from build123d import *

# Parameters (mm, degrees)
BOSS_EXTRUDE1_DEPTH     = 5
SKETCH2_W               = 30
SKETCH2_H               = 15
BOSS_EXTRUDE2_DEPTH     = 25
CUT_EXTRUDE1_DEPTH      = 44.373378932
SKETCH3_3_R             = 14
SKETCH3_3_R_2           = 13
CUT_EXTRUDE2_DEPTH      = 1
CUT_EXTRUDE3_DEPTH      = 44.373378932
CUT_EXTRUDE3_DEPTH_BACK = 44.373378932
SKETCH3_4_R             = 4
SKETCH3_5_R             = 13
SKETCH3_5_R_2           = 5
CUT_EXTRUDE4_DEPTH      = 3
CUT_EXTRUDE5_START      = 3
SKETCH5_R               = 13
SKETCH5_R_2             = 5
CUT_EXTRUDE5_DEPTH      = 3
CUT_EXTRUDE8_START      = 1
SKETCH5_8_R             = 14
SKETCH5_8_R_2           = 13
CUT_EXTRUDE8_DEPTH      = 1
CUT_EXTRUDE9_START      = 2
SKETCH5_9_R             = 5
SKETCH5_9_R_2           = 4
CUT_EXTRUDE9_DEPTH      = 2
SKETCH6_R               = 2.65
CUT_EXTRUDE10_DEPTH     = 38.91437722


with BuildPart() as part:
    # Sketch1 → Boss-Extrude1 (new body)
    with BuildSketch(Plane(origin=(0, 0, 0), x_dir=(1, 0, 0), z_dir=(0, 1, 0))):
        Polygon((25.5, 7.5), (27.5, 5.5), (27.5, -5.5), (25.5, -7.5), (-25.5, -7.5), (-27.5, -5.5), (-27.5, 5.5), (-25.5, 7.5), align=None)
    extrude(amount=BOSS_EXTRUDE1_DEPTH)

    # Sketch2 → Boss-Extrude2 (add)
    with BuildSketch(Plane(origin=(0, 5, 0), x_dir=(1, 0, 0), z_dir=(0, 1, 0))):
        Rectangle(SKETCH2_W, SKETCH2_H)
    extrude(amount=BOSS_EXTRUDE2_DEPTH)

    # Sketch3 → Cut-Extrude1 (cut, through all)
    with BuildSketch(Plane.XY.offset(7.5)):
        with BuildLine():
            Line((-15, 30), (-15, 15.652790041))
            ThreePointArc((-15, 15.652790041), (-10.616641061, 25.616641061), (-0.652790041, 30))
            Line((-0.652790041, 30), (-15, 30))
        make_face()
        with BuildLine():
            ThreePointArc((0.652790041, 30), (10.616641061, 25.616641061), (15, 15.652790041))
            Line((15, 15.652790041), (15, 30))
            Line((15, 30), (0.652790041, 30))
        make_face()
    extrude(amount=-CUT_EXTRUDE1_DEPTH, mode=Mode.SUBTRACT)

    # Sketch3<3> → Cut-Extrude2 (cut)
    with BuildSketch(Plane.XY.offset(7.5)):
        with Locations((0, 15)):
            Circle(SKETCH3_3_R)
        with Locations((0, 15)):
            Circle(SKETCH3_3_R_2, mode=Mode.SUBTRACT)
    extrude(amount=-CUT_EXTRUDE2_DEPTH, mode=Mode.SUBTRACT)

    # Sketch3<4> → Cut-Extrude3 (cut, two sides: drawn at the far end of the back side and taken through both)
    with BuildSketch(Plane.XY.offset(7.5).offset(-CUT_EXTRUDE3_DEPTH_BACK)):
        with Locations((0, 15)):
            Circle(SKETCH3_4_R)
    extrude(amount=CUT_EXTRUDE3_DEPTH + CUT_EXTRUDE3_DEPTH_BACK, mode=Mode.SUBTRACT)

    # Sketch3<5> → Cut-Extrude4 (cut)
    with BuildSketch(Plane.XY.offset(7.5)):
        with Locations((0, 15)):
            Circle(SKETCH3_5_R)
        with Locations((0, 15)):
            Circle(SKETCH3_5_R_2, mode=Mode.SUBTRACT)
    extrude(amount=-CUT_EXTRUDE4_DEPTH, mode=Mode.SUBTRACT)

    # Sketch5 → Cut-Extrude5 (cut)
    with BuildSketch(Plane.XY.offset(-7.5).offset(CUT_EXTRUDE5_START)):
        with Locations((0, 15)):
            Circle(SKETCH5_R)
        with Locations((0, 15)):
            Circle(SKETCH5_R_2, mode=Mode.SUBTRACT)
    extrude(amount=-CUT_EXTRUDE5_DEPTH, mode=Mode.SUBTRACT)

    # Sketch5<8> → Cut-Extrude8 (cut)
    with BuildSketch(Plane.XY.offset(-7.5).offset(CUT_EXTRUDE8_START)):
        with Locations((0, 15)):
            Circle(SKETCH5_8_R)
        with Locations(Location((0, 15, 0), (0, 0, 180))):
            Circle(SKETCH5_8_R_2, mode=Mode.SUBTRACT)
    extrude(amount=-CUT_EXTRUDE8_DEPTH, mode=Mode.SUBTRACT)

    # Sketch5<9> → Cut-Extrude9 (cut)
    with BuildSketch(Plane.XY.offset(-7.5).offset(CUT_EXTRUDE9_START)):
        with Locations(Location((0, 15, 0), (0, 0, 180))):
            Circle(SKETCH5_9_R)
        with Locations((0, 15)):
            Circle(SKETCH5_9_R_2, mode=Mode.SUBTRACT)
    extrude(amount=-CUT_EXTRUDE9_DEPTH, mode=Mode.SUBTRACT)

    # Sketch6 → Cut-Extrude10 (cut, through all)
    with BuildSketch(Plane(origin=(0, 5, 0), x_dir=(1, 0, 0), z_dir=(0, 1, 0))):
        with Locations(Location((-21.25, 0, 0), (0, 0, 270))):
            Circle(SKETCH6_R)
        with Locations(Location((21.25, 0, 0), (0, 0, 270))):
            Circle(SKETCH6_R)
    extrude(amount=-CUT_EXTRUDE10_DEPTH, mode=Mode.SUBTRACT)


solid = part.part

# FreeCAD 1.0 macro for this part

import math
import FreeCAD as App
import Part
import Sketcher
from FreeCAD import Vector
Q = App.Units.Quantity


def add_polygon(sketch, points):
    """Adds a closed chain of lines whose ends are joined by coincident constraints."""
    first, n = sketch.GeometryCount, len(points)
    for a, b in zip(points, points[1:] + points[:1]):
        sketch.addGeometry(Part.LineSegment(App.Vector(*a, 0), App.Vector(*b, 0)), False)
    for i in range(n):
        sketch.addConstraint(Sketcher.Constraint("Coincident", first + i, 2, first + (i + 1) % n, 1))

doc = App.newDocument("Part")
body = doc.addObject("PartDesign::Body", "Body")

sketch1 = doc.addObject("Sketcher::SketchObject", "Sketch")
body.addObject(sketch1)
sketch1.AttachmentSupport = (doc.XZ_Plane, [""])
sketch1.MapMode = "FlatFace"
add_polygon(sketch1, [(27.5, -5.5), (25.5, -7.5), (-25.5, -7.5), (-27.5, -5.5), (-27.5, 5.5), (-25.5, 7.5), (25.5, 7.5), (27.5, 5.5)])
sketch1.addConstraint([
    Sketcher.Constraint("Horizontal", 1),
    Sketcher.Constraint("Vertical", 3),
    Sketcher.Constraint("Horizontal", 5),
    Sketcher.Constraint("Vertical", 7),
    Sketcher.Constraint("Symmetric", 0, 2, 4, 2, -1, 1),
    Sketcher.Constraint("Symmetric", 2, 2, 6, 2, -1, 1),
    Sketcher.Constraint("Perpendicular", 0, 2),
    Sketcher.Constraint("Perpendicular", 2, 4),
    Sketcher.Constraint("Perpendicular", 4, 6),
    Sketcher.Constraint("Horizontal", 3, 2, 6, 2),
    Sketcher.Constraint("Vertical", 1, 2, 4, 2),
    Sketcher.Constraint("DistanceX", 1, 2, 1, 1, Q("51 mm")),
    Sketcher.Constraint("DistanceY", 3, 1, 3, 2, Q("11 mm")),
    Sketcher.Constraint("DistanceX", 2, 2, 1, 2, Q("2 mm")),
])
pad1 = doc.addObject("PartDesign::Pad", "Pad")
body.addObject(pad1)
pad1.Profile = sketch1
pad1.Length = 5
pad1.Reversed = True

sketch2 = doc.addObject("Sketcher::SketchObject", "Sketch001")
body.addObject(sketch2)
sketch2.AttachmentSupport = (doc.XZ_Plane, [""])
sketch2.MapMode = "FlatFace"
sketch2.AttachmentOffset = App.Placement(Vector(0, 0, -5), App.Rotation())
add_polygon(sketch2, [(-15, -7.5), (-15, 7.5), (15, 7.5), (15, -7.5)])
sketch2.addConstraint([
    Sketcher.Constraint("Vertical", 0),
    Sketcher.Constraint("Horizontal", 1),
    Sketcher.Constraint("Vertical", 2),
    Sketcher.Constraint("Horizontal", 3),
    Sketcher.Constraint("Symmetric", 0, 2, 2, 2, -1, 1),
    Sketcher.Constraint("DistanceX", 1, 1, 1, 2, Q("30 mm")),
    Sketcher.Constraint("DistanceY", 0, 1, 0, 2, Q("15 mm")),
])
pad2 = doc.addObject("PartDesign::Pad", "Pad001")
body.addObject(pad2)
pad2.Profile = sketch2
pad2.Length = 25
pad2.Reversed = True

sketch3 = doc.addObject("Sketcher::SketchObject", "Sketch002")
body.addObject(sketch3)
sketch3.AttachmentSupport = (doc.XY_Plane, [""])
sketch3.MapMode = "FlatFace"
sketch3.AttachmentOffset = App.Placement(Vector(0, 0, 7.5), App.Rotation())
sketch3.addGeometry([
    Part.LineSegment(Vector(-15, 30, 0), Vector(-15, 15.65279, 0)),
    Part.ArcOfCircle(Part.Circle(Vector(0, 15, 0), Vector(0, 0, 1), 15.014198), math.radians(92.491902), math.radians(177.508098)),
    Part.LineSegment(Vector(-0.65279, 30, 0), Vector(-15, 30, 0)),
    Part.ArcOfCircle(Part.Circle(Vector(0, 15, 0), Vector(0, 0, 1), 15.014198), math.radians(2.491902), math.radians(87.508098)),
    Part.LineSegment(Vector(15, 15.65279, 0), Vector(15, 30, 0)),
    Part.LineSegment(Vector(15, 30, 0), Vector(0.65279, 30, 0)),
], False)
sketch3.addConstraint([
    Sketcher.Constraint("Coincident", 0, 2, 1, 2),
    Sketcher.Constraint("Coincident", 1, 1, 2, 1),
    Sketcher.Constraint("Coincident", 2, 2, 0, 1),
    Sketcher.Constraint("Coincident", 3, 1, 4, 1),
    Sketcher.Constraint("Coincident", 4, 2, 5, 1),
    Sketcher.Constraint("Coincident", 5, 2, 3, 2),
    Sketcher.Constraint("Vertical", 0),
    Sketcher.Constraint("Horizontal", 2),
    Sketcher.Constraint("Vertical", 4),
    Sketcher.Constraint("Horizontal", 5),
    Sketcher.Constraint("Coincident", 3, 3, 1, 3),
    Sketcher.Constraint("Equal", 1, 3),
    Sketcher.Constraint("Symmetric", 0, 2, 3, 1, -2),
    Sketcher.Constraint("Horizontal", 2, 2, 4, 2),
    Sketcher.Constraint("Equal", 5, 0),
    Sketcher.Constraint("DistanceY", -1, 1, 1, 3, Q("15 mm")),
    Sketcher.Constraint("DistanceX", 0, 2, -1, 1, Q("15 mm")),
    Sketcher.Constraint("Radius", 1, Q("15.014198 mm")),
])
pocket1 = doc.addObject("PartDesign::Pocket", "Pocket")
body.addObject(pocket1)
pocket1.Profile = sketch3
pocket1.Type = "ThroughAll"

sketch4 = doc.addObject("Sketcher::SketchObject", "Sketch003")
body.addObject(sketch4)
sketch4.AttachmentSupport = (doc.XY_Plane, [""])
sketch4.MapMode = "FlatFace"
sketch4.AttachmentOffset = App.Placement(Vector(0, 0, 7.5), App.Rotation())
sketch4.addGeometry([
    Part.Circle(Vector(0, 15, 0), Vector(0, 0, 1), 14),
    Part.Circle(Vector(0, 15, 0), Vector(0, 0, 1), 13),
], False)
sketch4.addConstraint([
    Sketcher.Constraint("Coincident", 1, 3, 0, 3),
    Sketcher.Constraint("PointOnObject", 0, 3, -2),
    Sketcher.Constraint("Diameter", 0, Q("28 mm")),
    Sketcher.Constraint("Diameter", 1, Q("26 mm")),
    Sketcher.Constraint("DistanceY", -1, 1, 0, 3, Q("15 mm")),
])
pocket2 = doc.addObject("PartDesign::Pocket", "Pocket001")
body.addObject(pocket2)
pocket2.Profile = sketch4
pocket2.Length = 1

sketch5 = doc.addObject("Sketcher::SketchObject", "Sketch004")
body.addObject(sketch5)
sketch5.AttachmentSupport = (doc.XY_Plane, [""])
sketch5.MapMode = "FlatFace"
sketch5.AttachmentOffset = App.Placement(Vector(0, 0, 7.5), App.Rotation())
sketch5.addGeometry(Part.Circle(Vector(0, 15, 0), Vector(0, 0, 1), 4), False)
sketch5.addConstraint([
    Sketcher.Constraint("PointOnObject", 0, 3, -2),
    Sketcher.Constraint("Diameter", 0, Q("8 mm")),
    Sketcher.Constraint("DistanceY", -1, 1, 0, 3, Q("15 mm")),
])
pocket3 = doc.addObject("PartDesign::Pocket", "Pocket002")
body.addObject(pocket3)
pocket3.Profile = sketch5
pocket3.Type = "ThroughAll"
pocket3.Midplane = True

sketch6 = doc.addObject("Sketcher::SketchObject", "Sketch005")
body.addObject(sketch6)
sketch6.AttachmentSupport = (doc.XY_Plane, [""])
sketch6.MapMode = "FlatFace"
sketch6.AttachmentOffset = App.Placement(Vector(0, 0, 7.5), App.Rotation())
sketch6.addGeometry([
    Part.Circle(Vector(0, 15, 0), Vector(0, 0, 1), 13),
    Part.Circle(Vector(0, 15, 0), Vector(0, 0, 1), 5),
], False)
sketch6.addConstraint([
    Sketcher.Constraint("Coincident", 1, 3, 0, 3),
    Sketcher.Constraint("PointOnObject", 0, 3, -2),
    Sketcher.Constraint("Diameter", 0, Q("26 mm")),
    Sketcher.Constraint("Diameter", 1, Q("10 mm")),
    Sketcher.Constraint("DistanceY", -1, 1, 0, 3, Q("15 mm")),
])
pocket4 = doc.addObject("PartDesign::Pocket", "Pocket003")
body.addObject(pocket4)
pocket4.Profile = sketch6
pocket4.Length = 3

sketch7 = doc.addObject("Sketcher::SketchObject", "Sketch006")
body.addObject(sketch7)
sketch7.AttachmentSupport = (doc.XY_Plane, [""])
sketch7.MapMode = "FlatFace"
sketch7.AttachmentOffset = App.Placement(Vector(0, 0, -4.5), App.Rotation())
sketch7.addGeometry([
    Part.Circle(Vector(0, 15, 0), Vector(0, 0, 1), 13),
    Part.Circle(Vector(0, 15, 0), Vector(0, 0, 1), 5),
], False)
sketch7.addConstraint([
    Sketcher.Constraint("Coincident", 1, 3, 0, 3),
    Sketcher.Constraint("PointOnObject", 0, 3, -2),
    Sketcher.Constraint("Diameter", 0, Q("26 mm")),
    Sketcher.Constraint("Diameter", 1, Q("10 mm")),
    Sketcher.Constraint("DistanceY", -1, 1, 0, 3, Q("15 mm")),
])
pocket5 = doc.addObject("PartDesign::Pocket", "Pocket004")
body.addObject(pocket5)
pocket5.Profile = sketch7
pocket5.Length = 3

sketch8 = doc.addObject("Sketcher::SketchObject", "Sketch007")
body.addObject(sketch8)
sketch8.AttachmentSupport = (doc.XY_Plane, [""])
sketch8.MapMode = "FlatFace"
sketch8.AttachmentOffset = App.Placement(Vector(0, 0, -6.5), App.Rotation())
sketch8.addGeometry([
    Part.Circle(Vector(0, 15, 0), Vector(0, 0, 1), 14),
    Part.Circle(Vector(0, 15, 0), Vector(0, 0, 1), 13),
], False)
sketch8.addConstraint([
    Sketcher.Constraint("Coincident", 1, 3, 0, 3),
    Sketcher.Constraint("PointOnObject", 0, 3, -2),
    Sketcher.Constraint("Diameter", 0, Q("28 mm")),
    Sketcher.Constraint("Diameter", 1, Q("26 mm")),
    Sketcher.Constraint("DistanceY", -1, 1, 0, 3, Q("15 mm")),
])
pocket6 = doc.addObject("PartDesign::Pocket", "Pocket005")
body.addObject(pocket6)
pocket6.Profile = sketch8
pocket6.Length = 1

sketch9 = doc.addObject("Sketcher::SketchObject", "Sketch008")
body.addObject(sketch9)
sketch9.AttachmentSupport = (doc.XY_Plane, [""])
sketch9.MapMode = "FlatFace"
sketch9.AttachmentOffset = App.Placement(Vector(0, 0, -5.5), App.Rotation())
sketch9.addGeometry([
    Part.Circle(Vector(0, 15, 0), Vector(0, 0, 1), 5),
    Part.Circle(Vector(0, 15, 0), Vector(0, 0, 1), 4),
], False)
sketch9.addConstraint([
    Sketcher.Constraint("Coincident", 1, 3, 0, 3),
    Sketcher.Constraint("PointOnObject", 0, 3, -2),
    Sketcher.Constraint("Diameter", 0, Q("10 mm")),
    Sketcher.Constraint("Diameter", 1, Q("8 mm")),
    Sketcher.Constraint("DistanceY", -1, 1, 0, 3, Q("15 mm")),
])
pocket7 = doc.addObject("PartDesign::Pocket", "Pocket006")
body.addObject(pocket7)
pocket7.Profile = sketch9
pocket7.Length = 2

sketch10 = doc.addObject("Sketcher::SketchObject", "Sketch009")
body.addObject(sketch10)
sketch10.AttachmentSupport = (doc.XZ_Plane, [""])
sketch10.MapMode = "FlatFace"
sketch10.AttachmentOffset = App.Placement(Vector(0, 0, -5), App.Rotation())
sketch10.addGeometry([
    Part.Circle(Vector(-21.25, 0, 0), Vector(0, 0, 1), 2.65),
    Part.Circle(Vector(21.25, 0, 0), Vector(0, 0, 1), 2.65),
], False)
sketch10.addConstraint([
    Sketcher.Constraint("Equal", 0, 1),
    Sketcher.Constraint("Symmetric", 0, 3, 1, 3, -1, 1),
    Sketcher.Constraint("PointOnObject", 0, 3, -1),
    Sketcher.Constraint("Diameter", 0, Q("5.3 mm")),
    Sketcher.Constraint("DistanceX", 0, 3, 1, 3, Q("42.5 mm")),
])
pocket8 = doc.addObject("PartDesign::Pocket", "Pocket007")
body.addObject(pocket8)
pocket8.Profile = sketch10
pocket8.Type = "ThroughAll"
pocket8.Reversed = True

doc.recompute()
